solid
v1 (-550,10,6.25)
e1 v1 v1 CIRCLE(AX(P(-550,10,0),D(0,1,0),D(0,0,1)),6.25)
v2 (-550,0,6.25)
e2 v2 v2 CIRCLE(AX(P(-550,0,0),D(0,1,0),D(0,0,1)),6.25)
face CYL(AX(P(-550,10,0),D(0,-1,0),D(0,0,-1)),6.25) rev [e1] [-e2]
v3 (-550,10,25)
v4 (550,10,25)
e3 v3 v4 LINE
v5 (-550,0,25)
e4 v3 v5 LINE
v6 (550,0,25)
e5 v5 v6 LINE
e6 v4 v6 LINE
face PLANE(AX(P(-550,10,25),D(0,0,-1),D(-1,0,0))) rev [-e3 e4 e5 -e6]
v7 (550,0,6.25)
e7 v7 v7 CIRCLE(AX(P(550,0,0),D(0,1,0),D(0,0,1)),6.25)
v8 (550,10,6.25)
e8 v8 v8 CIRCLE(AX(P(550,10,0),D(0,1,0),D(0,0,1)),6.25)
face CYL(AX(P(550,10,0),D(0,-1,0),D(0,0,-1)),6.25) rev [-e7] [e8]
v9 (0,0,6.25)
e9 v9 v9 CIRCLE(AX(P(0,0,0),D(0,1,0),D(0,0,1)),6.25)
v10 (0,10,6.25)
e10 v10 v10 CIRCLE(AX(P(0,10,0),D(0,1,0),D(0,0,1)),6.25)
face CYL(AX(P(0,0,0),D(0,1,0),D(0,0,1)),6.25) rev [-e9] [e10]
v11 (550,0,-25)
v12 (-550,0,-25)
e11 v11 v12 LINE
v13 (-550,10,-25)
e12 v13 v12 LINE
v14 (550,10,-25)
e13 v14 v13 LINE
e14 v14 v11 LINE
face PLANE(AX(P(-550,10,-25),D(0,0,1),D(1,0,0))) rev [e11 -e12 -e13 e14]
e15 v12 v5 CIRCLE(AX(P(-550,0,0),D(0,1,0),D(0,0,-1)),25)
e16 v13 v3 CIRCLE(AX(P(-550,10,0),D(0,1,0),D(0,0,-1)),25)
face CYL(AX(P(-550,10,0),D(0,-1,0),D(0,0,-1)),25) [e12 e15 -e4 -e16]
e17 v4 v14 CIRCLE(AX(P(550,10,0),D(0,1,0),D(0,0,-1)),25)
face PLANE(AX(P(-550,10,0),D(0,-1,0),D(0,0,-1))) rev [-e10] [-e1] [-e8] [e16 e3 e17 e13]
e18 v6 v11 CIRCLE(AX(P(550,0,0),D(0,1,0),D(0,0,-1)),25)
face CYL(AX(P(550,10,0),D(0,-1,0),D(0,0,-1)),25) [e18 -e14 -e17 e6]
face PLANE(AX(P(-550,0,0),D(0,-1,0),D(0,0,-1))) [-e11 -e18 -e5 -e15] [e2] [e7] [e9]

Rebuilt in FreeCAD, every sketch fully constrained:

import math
import FreeCAD as App
import Part
import Sketcher
from FreeCAD import Vector
Q = App.Units.Quantity

doc = App.newDocument("Part")
params = doc.addObject("Spreadsheet::Sheet", "Params")
for row, (alias, value) in enumerate([
    ("sketch1_radius", "25 mm"),
    ("sketch1_diameter", "12.5 mm"),
    ("sketch1_width", "1100 mm"),
    ("pad1_length", "10 mm"),
    ("sketch2_diameter", "12.5 mm"),
], start=1):
    params.set(f"A{row}", alias)
    params.set(f"B{row}", "=" + value)
    params.setAlias(f"B{row}", alias)

body = doc.addObject("PartDesign::Body", "Body")

# Sketch on XZ plane
sketch1 = body.newObject("Sketcher::SketchObject", "Sketch")
sketch1.AttachmentSupport = (doc.getObject("XZ_Plane"), [""])
sketch1.MapMode = "FlatFace"
sketch1.addGeometry(Part.LineSegment(Vector(550, -25, 0), Vector(-550, -25, 0)), False)
sketch1.addGeometry(Part.ArcOfCircle(Part.Circle(Vector(-550, 0, 0), Vector(0, 0, 1), 25), math.radians(90), math.radians(270)), False)
sketch1.addGeometry(Part.LineSegment(Vector(-550, 25, 0), Vector(550, 25, 0)), False)
sketch1.addGeometry(Part.ArcOfCircle(Part.Circle(Vector(550, 0, 0), Vector(0, 0, 1), 25), math.radians(-90), math.radians(90)), False)
sketch1.addGeometry(Part.Circle(Vector(550, 0, 0), Vector(0, 0, 1), 6.25), False)
sketch1.addGeometry(Part.Circle(Vector(-550, 0, 0), Vector(0, 0, 1), 6.25), False)
sketch1.addConstraint(Sketcher.Constraint("Tangent", 0, 2, 1, 2))
sketch1.addConstraint(Sketcher.Constraint("Tangent", 1, 1, 2, 1))
sketch1.addConstraint(Sketcher.Constraint("Tangent", 2, 2, 3, 2))
sketch1.addConstraint(Sketcher.Constraint("Tangent", 3, 1, 0, 1))
sketch1.addConstraint(Sketcher.Constraint("Horizontal", 0))
sketch1.addConstraint(Sketcher.Constraint("Horizontal", 2))
sketch1.addConstraint(Sketcher.Constraint("Coincident", 4, 3, 3, 3))
sketch1.addConstraint(Sketcher.Constraint("Coincident", 5, 3, 1, 3))
sketch1.addConstraint(Sketcher.Constraint("Equal", 4, 5))
sketch1.addConstraint(Sketcher.Constraint("Symmetric", 1, 3, 3, 3, -1, 1))
sketch1.addConstraint(Sketcher.Constraint("Radius", 1, Q("25 mm")))
sketch1.addConstraint(Sketcher.Constraint("Diameter", 4, Q("12.5 mm")))
sketch1.addConstraint(Sketcher.Constraint("DistanceX", 0, 2, 0, 1, Q("1100 mm")))
sketch1.setExpression("Constraints[10]", "Params.sketch1_radius")
sketch1.setExpression("Constraints[11]", "Params.sketch1_diameter")
sketch1.setExpression("Constraints[12]", "Params.sketch1_width")
pad1 = body.newObject("PartDesign::Pad", "Pad")
pad1.Profile = sketch1
pad1.setExpression("Length", "Params.pad1_length")
pad1.Reversed = True

# Sketch on XZ plane
sketch2 = body.newObject("Sketcher::SketchObject", "Sketch001")
sketch2.AttachmentSupport = (doc.getObject("XZ_Plane"), [""])
sketch2.MapMode = "FlatFace"
sketch2.AttachmentOffset = App.Placement(Vector(0, 0, -10), App.Rotation())
sketch2.addGeometry(Part.Circle(Vector(0, 0, 0), Vector(0, 0, 1), 6.25), False)
sketch2.addConstraint(Sketcher.Constraint("Coincident", 0, 3, -1, 1))
sketch2.addConstraint(Sketcher.Constraint("Diameter", 0, Q("12.5 mm")))
sketch2.setExpression("Constraints[1]", "Params.sketch2_diameter")
pocket1 = body.newObject("PartDesign::Pocket", "Pocket")
pocket1.Profile = sketch2
pocket1.Type = "ThroughAll"
pocket1.Reversed = True

doc.recompute()
